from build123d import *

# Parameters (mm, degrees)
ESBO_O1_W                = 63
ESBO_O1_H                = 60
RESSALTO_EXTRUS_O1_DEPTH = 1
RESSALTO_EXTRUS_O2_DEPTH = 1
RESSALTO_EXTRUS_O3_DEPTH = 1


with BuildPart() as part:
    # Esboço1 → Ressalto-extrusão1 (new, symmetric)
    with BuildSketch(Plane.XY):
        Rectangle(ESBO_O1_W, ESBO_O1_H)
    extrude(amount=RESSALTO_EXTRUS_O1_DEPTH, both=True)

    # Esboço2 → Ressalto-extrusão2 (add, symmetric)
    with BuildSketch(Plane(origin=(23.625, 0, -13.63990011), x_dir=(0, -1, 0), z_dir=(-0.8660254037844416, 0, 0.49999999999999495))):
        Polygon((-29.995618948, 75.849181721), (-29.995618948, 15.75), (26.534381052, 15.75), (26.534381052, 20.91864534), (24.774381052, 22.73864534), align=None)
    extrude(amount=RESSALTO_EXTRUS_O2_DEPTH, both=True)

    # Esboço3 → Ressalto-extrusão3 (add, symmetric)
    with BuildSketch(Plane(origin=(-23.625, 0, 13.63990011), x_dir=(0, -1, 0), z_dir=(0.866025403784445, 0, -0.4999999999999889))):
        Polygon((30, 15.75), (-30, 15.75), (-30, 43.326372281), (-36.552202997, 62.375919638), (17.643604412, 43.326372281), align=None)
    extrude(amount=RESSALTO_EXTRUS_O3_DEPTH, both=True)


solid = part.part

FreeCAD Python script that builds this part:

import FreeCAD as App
import Part
import Sketcher
from FreeCAD import Vector


def add_polygon(sketch, points):
    """Adds a closed chain of lines whose ends are joined by coincident constraints."""
    first, n = sketch.GeometryCount, len(points)
    for a, b in zip(points, points[1:] + points[:1]):
        sketch.addGeometry(Part.LineSegment(App.Vector(*a, 0), App.Vector(*b, 0)), False)
    for i in range(n):
        sketch.addConstraint(Sketcher.Constraint("Coincident", first + i, 2, first + (i + 1) % n, 1))

doc = App.newDocument("Part")
body = doc.addObject("PartDesign::Body", "Body")

# Sketch on XY plane
sketch1 = doc.addObject("Sketcher::SketchObject", "Sketch")
body.addObject(sketch1)
sketch1.AttachmentSupport = (doc.XY_Plane, [""])
sketch1.MapMode = "FlatFace"
add_polygon(sketch1, [(-32, 30), (-32, -30), (32, -30), (32, 30)])  # lines 0-3
sketch1.addConstraint([
    Sketcher.Constraint("Vertical", 0),
    Sketcher.Constraint("Horizontal", 1),
    Sketcher.Constraint("Vertical", 2),
    Sketcher.Constraint("Horizontal", 3),
    Sketcher.Constraint("Symmetric", 0, 2, 2, 2, -1, 1),
    Sketcher.Constraint("DistanceX", 1, 1, 1, 2, 63.0),
    Sketcher.Constraint("DistanceY", 0, 2, 0, 1, 60.0),
])
pad1 = doc.addObject("PartDesign::Pad", "Pad")
body.addObject(pad1)
pad1.Profile = sketch1
pad1.Length = 2
pad1.Midplane = True

# Sketch on an angled plane
sketch2 = doc.addObject("Sketcher::SketchObject", "Sketch001")
body.addObject(sketch2)
sketch2.Placement = App.Placement(Vector(23.625, 0, -13.6399), App.Rotation(Vector(0, -1, 0), Vector(0.5, 0, 0.866025404), Vector(-0.866025404, 0, 0.5), "ZXY"))
add_polygon(sketch2, [(-30, 75.8), (-30, 15.8), (26.5, 15.8), (26.5, 20.9), (24.8, 22.7)])  # lines 0-4
sketch2.addConstraint([
    Sketcher.Constraint("Vertical", 0),
    Sketcher.Constraint("Horizontal", 1),
    Sketcher.Constraint("Vertical", 2),
    Sketcher.Constraint("DistanceX", 1, 1, 1, 2, 56.53),
    Sketcher.Constraint("DistanceY", -1, 1, 0, 2, 15.75),
    Sketcher.Constraint("DistanceX", 3, 2, 2, 2, 1.76),
    Sketcher.Constraint("DistanceY", 2, 2, 3, 2, 1.82),
    Sketcher.Constraint("DistanceY", 0, 2, 0, 1, 60.099182),
    Sketcher.Constraint("DistanceY", 2, 1, 2, 2, 5.168645),
    Sketcher.Constraint("DistanceX", 0, 2, -1, 1, 29.995619),
])
pad2 = doc.addObject("PartDesign::Pad", "Pad001")
body.addObject(pad2)
pad2.Profile = sketch2
pad2.Length = 2
pad2.Midplane = True

# Sketch on an angled plane
sketch3 = doc.addObject("Sketcher::SketchObject", "Sketch002")
body.addObject(sketch3)
sketch3.Placement = App.Placement(Vector(-23.625, 0, 13.6399), App.Rotation(Vector(0, -1, 0), Vector(-0.5, 0, -0.866025404), Vector(0.866025404, 0, -0.5), "ZXY"))
add_polygon(sketch3, [(-30, 16), (30, 16), (18, 43), (-37, 62), (-30, 43)])  # lines 0-4
sketch3.addConstraint([
    Sketcher.Constraint("Horizontal", 0),
    Sketcher.Constraint("Vertical", 4),
    Sketcher.Constraint("Horizontal", 1, 2, 3, 2),
    Sketcher.Constraint("DistanceX", 0, 1, 0, 2, 60.0),
    Sketcher.Constraint("DistanceX", -1, 1, 0, 2, 30.0),
    Sketcher.Constraint("DistanceY", -1, 1, 0, 2, 15.75),
    Sketcher.Constraint("Distance", 3, 20.144891),
    Sketcher.Constraint("DistanceY", 4, 2, 4, 1, 27.576372),
    Sketcher.Constraint("DistanceY", -1, 1, 2, 2, 62.37592),
    Sketcher.Constraint("Distance", 1, 30.218154),
])
pad3 = doc.addObject("PartDesign::Pad", "Pad002")
body.addObject(pad3)
pad3.Profile = sketch3
pad3.Length = 2
pad3.Midplane = True

doc.recompute()
